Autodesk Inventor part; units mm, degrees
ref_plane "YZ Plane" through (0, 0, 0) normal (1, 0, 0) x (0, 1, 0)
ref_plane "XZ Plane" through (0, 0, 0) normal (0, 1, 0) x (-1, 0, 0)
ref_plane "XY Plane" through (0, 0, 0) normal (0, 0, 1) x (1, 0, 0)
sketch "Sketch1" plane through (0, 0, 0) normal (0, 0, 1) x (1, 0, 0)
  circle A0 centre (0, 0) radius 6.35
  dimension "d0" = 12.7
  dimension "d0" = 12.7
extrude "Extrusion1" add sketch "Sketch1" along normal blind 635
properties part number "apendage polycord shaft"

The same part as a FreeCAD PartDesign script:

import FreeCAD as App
import Part
import Sketcher
from FreeCAD import Vector
Q = App.Units.Quantity

doc = App.newDocument("Part")
params = doc.addObject("Spreadsheet::Sheet", "Params")
for row, (alias, value) in enumerate([
    ("sketch1_diameter", "0.5 in"),
    ("pad1_length", "25 in"),
], start=1):
    params.set(f"A{row}", alias)
    params.set(f"B{row}", "=" + value)
    params.setAlias(f"B{row}", alias)

body = doc.addObject("PartDesign::Body", "Body")

sketch1 = body.newObject("Sketcher::SketchObject", "Sketch")
sketch1.AttachmentSupport = (doc.getObject("XY_Plane"), [""])
sketch1.MapMode = "FlatFace"
sketch1.addGeometry(Part.Circle(Vector(0, 0, 0), Vector(0, 0, 1), 6), False)
sketch1.addConstraint(Sketcher.Constraint("Coincident", 0, 3, -1, 1))
sketch1.addConstraint(Sketcher.Constraint("Diameter", 0, Q("0.5 in")))
sketch1.setExpression("Constraints[1]", "Params.sketch1_diameter")
pad1 = body.newObject("PartDesign::Pad", "Pad")
pad1.Profile = sketch1
pad1.setExpression("Length", "Params.pad1_length")

doc.recompute()
